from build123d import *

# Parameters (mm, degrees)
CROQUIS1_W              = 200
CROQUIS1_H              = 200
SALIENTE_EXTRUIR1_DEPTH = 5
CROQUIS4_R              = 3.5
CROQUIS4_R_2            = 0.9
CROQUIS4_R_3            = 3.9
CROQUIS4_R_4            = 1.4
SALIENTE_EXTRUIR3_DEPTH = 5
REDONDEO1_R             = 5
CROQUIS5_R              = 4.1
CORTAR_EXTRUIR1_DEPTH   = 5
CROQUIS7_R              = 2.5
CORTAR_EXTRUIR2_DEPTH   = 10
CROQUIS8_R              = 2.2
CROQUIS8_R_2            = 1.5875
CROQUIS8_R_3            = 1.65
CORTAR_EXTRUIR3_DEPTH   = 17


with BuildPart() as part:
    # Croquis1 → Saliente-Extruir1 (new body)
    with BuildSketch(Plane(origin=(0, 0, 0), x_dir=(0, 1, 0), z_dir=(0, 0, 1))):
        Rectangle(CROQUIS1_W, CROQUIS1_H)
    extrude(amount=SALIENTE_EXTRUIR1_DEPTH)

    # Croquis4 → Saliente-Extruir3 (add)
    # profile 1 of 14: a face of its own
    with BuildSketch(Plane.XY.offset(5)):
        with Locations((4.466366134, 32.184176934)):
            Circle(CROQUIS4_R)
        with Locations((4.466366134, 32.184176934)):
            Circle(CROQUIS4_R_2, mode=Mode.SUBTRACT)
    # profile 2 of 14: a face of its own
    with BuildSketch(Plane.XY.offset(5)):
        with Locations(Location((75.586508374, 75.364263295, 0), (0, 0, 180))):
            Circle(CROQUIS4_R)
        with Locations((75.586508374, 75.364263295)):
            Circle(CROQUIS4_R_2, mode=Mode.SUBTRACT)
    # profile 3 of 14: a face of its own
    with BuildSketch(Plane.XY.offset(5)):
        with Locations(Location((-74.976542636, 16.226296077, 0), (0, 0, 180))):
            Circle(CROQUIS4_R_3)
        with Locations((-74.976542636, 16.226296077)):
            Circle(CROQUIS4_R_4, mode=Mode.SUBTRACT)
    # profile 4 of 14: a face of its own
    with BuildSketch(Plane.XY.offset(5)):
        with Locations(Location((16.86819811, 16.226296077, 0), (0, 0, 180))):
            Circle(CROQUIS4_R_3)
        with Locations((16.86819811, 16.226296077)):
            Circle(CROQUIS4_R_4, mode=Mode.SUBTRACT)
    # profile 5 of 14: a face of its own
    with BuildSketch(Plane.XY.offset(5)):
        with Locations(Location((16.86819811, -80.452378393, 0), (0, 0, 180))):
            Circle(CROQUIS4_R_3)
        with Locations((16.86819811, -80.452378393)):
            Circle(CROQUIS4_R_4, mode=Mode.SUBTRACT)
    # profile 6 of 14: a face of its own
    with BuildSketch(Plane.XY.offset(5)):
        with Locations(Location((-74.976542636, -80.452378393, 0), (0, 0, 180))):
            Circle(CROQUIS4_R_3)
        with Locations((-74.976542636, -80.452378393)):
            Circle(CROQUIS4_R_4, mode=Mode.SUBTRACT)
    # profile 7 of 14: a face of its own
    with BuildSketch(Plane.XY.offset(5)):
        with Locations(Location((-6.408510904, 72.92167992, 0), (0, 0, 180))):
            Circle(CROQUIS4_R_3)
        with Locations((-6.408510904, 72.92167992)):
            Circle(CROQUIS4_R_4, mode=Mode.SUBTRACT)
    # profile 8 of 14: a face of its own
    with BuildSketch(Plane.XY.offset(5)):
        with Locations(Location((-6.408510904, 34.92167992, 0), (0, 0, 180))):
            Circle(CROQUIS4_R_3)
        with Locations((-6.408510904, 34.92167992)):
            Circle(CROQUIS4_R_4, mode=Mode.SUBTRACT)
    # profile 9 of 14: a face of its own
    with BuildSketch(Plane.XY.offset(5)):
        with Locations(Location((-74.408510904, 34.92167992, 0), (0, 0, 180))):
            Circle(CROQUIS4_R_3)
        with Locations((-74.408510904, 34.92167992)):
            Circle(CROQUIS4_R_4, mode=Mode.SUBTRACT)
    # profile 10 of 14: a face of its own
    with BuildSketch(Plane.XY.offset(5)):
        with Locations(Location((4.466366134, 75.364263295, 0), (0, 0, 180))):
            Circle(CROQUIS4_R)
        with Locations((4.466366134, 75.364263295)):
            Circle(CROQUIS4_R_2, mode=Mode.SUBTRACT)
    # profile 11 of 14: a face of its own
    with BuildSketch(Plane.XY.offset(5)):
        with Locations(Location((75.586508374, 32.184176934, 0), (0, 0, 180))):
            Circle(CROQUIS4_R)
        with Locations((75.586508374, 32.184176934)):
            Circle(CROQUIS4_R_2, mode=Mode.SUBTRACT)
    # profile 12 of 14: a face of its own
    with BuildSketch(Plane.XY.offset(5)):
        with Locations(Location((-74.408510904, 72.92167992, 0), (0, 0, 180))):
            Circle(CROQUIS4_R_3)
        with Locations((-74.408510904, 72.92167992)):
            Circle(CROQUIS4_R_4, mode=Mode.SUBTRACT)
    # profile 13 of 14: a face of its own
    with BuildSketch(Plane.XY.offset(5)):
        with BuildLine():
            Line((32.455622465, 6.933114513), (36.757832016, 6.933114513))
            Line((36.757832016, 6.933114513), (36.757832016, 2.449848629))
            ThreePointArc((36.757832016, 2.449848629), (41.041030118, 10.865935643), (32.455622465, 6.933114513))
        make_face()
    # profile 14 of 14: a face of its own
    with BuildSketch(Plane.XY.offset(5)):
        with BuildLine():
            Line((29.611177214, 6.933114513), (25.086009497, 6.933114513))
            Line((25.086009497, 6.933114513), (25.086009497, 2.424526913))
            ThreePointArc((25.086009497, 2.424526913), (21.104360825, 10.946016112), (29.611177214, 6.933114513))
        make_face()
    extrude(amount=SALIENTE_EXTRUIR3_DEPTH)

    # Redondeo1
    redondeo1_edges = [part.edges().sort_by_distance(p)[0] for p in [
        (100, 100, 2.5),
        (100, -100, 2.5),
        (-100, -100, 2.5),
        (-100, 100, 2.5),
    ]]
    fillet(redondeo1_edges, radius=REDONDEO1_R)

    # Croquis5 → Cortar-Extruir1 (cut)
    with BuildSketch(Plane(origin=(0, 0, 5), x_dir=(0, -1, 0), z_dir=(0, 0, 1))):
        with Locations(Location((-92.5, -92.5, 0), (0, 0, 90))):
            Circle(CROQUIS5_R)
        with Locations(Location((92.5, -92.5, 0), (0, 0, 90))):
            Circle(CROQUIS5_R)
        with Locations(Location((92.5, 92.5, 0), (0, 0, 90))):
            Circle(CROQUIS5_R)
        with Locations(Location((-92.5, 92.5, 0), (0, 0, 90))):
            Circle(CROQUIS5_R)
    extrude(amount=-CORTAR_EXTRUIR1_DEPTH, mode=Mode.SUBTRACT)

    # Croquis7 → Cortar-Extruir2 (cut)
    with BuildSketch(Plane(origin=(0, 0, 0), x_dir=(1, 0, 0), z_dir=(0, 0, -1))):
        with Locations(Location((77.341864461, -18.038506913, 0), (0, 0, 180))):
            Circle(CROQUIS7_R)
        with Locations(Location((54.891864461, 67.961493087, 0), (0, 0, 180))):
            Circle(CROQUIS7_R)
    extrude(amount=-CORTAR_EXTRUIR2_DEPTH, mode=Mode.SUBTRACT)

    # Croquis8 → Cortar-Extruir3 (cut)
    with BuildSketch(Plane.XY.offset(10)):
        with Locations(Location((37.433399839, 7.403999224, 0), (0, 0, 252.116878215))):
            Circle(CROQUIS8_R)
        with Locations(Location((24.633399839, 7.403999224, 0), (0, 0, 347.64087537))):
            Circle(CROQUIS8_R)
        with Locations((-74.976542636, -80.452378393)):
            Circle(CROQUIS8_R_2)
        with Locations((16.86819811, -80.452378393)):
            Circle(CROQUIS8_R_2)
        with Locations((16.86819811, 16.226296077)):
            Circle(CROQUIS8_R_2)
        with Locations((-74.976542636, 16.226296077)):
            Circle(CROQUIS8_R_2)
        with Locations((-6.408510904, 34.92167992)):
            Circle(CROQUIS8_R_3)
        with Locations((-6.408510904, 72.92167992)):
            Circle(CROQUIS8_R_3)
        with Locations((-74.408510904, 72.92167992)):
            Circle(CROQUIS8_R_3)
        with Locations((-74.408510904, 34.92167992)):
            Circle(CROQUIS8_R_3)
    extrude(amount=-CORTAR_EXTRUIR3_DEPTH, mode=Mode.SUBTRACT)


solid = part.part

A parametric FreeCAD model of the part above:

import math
import FreeCAD as App
import Part
import Sketcher
from FreeCAD import Vector


def edges_at(feature, points):
    """Names of the edges that pass closest to the given points."""
    edges = feature.Shape.Edges
    near = lambda p: min(range(len(edges)), key=lambda i: edges[i].distToShape(Part.Vertex(*p))[0])
    return sorted({f"Edge{near(p) + 1}" for p in points})


def add_polygon(sketch, points):
    """Adds a closed chain of lines whose ends are joined by coincident constraints."""
    first, n = sketch.GeometryCount, len(points)
    for a, b in zip(points, points[1:] + points[:1]):
        sketch.addGeometry(Part.LineSegment(App.Vector(*a, 0), App.Vector(*b, 0)), False)
    for i in range(n):
        sketch.addConstraint(Sketcher.Constraint("Coincident", first + i, 2, first + (i + 1) % n, 1))

doc = App.newDocument("Part")
body = doc.addObject("PartDesign::Body", "Body")

# Sketch on XY plane
sketch1 = body.newObject("Sketcher::SketchObject", "Sketch")
sketch1.AttachmentSupport = (doc.getObject("XY_Plane"), [""])
sketch1.MapMode = "FlatFace"
add_polygon(sketch1, [(-100, -100), (100, -100), (100, 100), (-100, 100)])  # lines 0-3
sketch1.addConstraint(Sketcher.Constraint("Horizontal", 0))
sketch1.addConstraint(Sketcher.Constraint("Vertical", 1))
sketch1.addConstraint(Sketcher.Constraint("Horizontal", 2))
sketch1.addConstraint(Sketcher.Constraint("Vertical", 3))
sketch1.addConstraint(Sketcher.Constraint("Symmetric", 0, 2, 2, 2, -1, 1))
sketch1.addConstraint(Sketcher.Constraint("Equal", 2, 1))
sketch1.addConstraint(Sketcher.Constraint("DistanceX", 0, 1, 0, 2, 200.0))
pad1 = body.newObject("PartDesign::Pad", "Pad")
pad1.Profile = sketch1
pad1.Length = 5

# Sketch on XY plane
sketch2 = body.newObject("Sketcher::SketchObject", "Sketch001")
sketch2.AttachmentSupport = (doc.getObject("XY_Plane"), [""])
sketch2.MapMode = "FlatFace"
sketch2.AttachmentOffset = App.Placement(Vector(0, 0, 5), App.Rotation())
sketch2.addGeometry(Part.Circle(Vector(4.5, 32.2, 0), Vector(0, 0, 1), 3.5), False)
sketch2.addGeometry(Part.Circle(Vector(4.5, 32.2, 0), Vector(0, 0, 1), 0.9), False)
sketch2.addGeometry(Part.Circle(Vector(75.6, 75.4, 0), Vector(0, 0, 1), 3.5), False)
sketch2.addGeometry(Part.Circle(Vector(75.6, 75.4, 0), Vector(0, 0, 1), 0.9), False)
sketch2.addGeometry(Part.Circle(Vector(-75, 16.2, 0), Vector(0, 0, 1), 3.9), False)
sketch2.addGeometry(Part.Circle(Vector(-75, 16.2, 0), Vector(0, 0, 1), 1.4), False)
sketch2.addGeometry(Part.Circle(Vector(16.9, 16.2, 0), Vector(0, 0, 1), 3.9), False)
sketch2.addGeometry(Part.Circle(Vector(16.9, 16.2, 0), Vector(0, 0, 1), 1.4), False)
sketch2.addGeometry(Part.Circle(Vector(16.9, -80.5, 0), Vector(0, 0, 1), 3.9), False)
sketch2.addGeometry(Part.Circle(Vector(16.9, -80.5, 0), Vector(0, 0, 1), 1.4), False)
sketch2.addGeometry(Part.Circle(Vector(-75, -80.5, 0), Vector(0, 0, 1), 3.9), False)
sketch2.addGeometry(Part.Circle(Vector(-75, -80.5, 0), Vector(0, 0, 1), 1.4), False)
sketch2.addGeometry(Part.Circle(Vector(-6.4, 72.9, 0), Vector(0, 0, 1), 3.9), False)
sketch2.addGeometry(Part.Circle(Vector(-6.4, 72.9, 0), Vector(0, 0, 1), 1.4), False)
sketch2.addGeometry(Part.Circle(Vector(-6.4, 34.9, 0), Vector(0, 0, 1), 3.9), False)
sketch2.addGeometry(Part.Circle(Vector(-6.4, 34.9, 0), Vector(0, 0, 1), 1.4), False)
sketch2.addGeometry(Part.Circle(Vector(-74.4, 34.9, 0), Vector(0, 0, 1), 3.9), False)
sketch2.addGeometry(Part.Circle(Vector(-74.4, 34.9, 0), Vector(0, 0, 1), 1.4), False)
sketch2.addGeometry(Part.Circle(Vector(4.5, 75.4, 0), Vector(0, 0, 1), 3.5), False)
sketch2.addGeometry(Part.Circle(Vector(4.5, 75.4, 0), Vector(0, 0, 1), 0.9), False)
sketch2.addGeometry(Part.Circle(Vector(75.6, 32.2, 0), Vector(0, 0, 1), 3.5), False)
sketch2.addGeometry(Part.Circle(Vector(75.6, 32.2, 0), Vector(0, 0, 1), 0.9), False)
sketch2.addGeometry(Part.Circle(Vector(-74.4, 72.9, 0), Vector(0, 0, 1), 3.9), False)
sketch2.addGeometry(Part.Circle(Vector(-74.4, 72.9, 0), Vector(0, 0, 1), 1.4), False)
sketch2.addGeometry(Part.LineSegment(Vector(32.5, 6.9, 0), Vector(36.8, 6.9, 0)), False)
sketch2.addGeometry(Part.LineSegment(Vector(36.8, 6.9, 0), Vector(36.8, 2.4, 0)), False)
sketch2.addGeometry(Part.ArcOfCircle(Part.Circle(Vector(37.4, 7.4, 0), Vector(0, 0, 1), 5), math.radians(-98), math.radians(185)), False)
sketch2.addGeometry(Part.LineSegment(Vector(25.1, 6.9, 0), Vector(29.6, 6.9, 0)), False)
sketch2.addGeometry(Part.ArcOfCircle(Part.Circle(Vector(24.6, 7.4, 0), Vector(0, 0, 1), 5), math.radians(-5), math.radians(275)), False)
sketch2.addGeometry(Part.LineSegment(Vector(25.1, 2.4, 0), Vector(25.1, 6.9, 0)), False)
sketch2.addConstraint(Sketcher.Constraint("Coincident", 24, 2, 25, 1))
sketch2.addConstraint(Sketcher.Constraint("Coincident", 25, 2, 26, 1))
sketch2.addConstraint(Sketcher.Constraint("Coincident", 26, 2, 24, 1))
sketch2.addConstraint(Sketcher.Constraint("Coincident", 27, 2, 28, 1))
sketch2.addConstraint(Sketcher.Constraint("Coincident", 28, 2, 29, 1))
sketch2.addConstraint(Sketcher.Constraint("Coincident", 29, 2, 27, 1))
sketch2.addConstraint(Sketcher.Constraint("Horizontal", 24))
sketch2.addConstraint(Sketcher.Constraint("Vertical", 25))
sketch2.addConstraint(Sketcher.Constraint("Horizontal", 27))
sketch2.addConstraint(Sketcher.Constraint("Vertical", 29))
sketch2.addConstraint(Sketcher.Constraint("Coincident", 1, 3, 0, 3))
sketch2.addConstraint(Sketcher.Constraint("Coincident", 3, 3, 2, 3))
sketch2.addConstraint(Sketcher.Constraint("Coincident", 5, 3, 4, 3))
sketch2.addConstraint(Sketcher.Constraint("Coincident", 7, 3, 6, 3))
sketch2.addConstraint(Sketcher.Constraint("Coincident", 9, 3, 8, 3))
sketch2.addConstraint(Sketcher.Constraint("Coincident", 11, 3, 10, 3))
sketch2.addConstraint(Sketcher.Constraint("Coincident", 13, 3, 12, 3))
sketch2.addConstraint(Sketcher.Constraint("Coincident", 15, 3, 14, 3))
sketch2.addConstraint(Sketcher.Constraint("Coincident", 17, 3, 16, 3))
sketch2.addConstraint(Sketcher.Constraint("Coincident", 19, 3, 18, 3))
sketch2.addConstraint(Sketcher.Constraint("Coincident", 21, 3, 20, 3))
sketch2.addConstraint(Sketcher.Constraint("Coincident", 23, 3, 22, 3))
sketch2.addConstraint(Sketcher.Constraint("Equal", 0, 2))
sketch2.addConstraint(Sketcher.Constraint("Equal", 1, 3))
sketch2.addConstraint(Sketcher.Constraint("Equal", 4, 6))
sketch2.addConstraint(Sketcher.Constraint("Equal", 5, 7))
sketch2.addConstraint(Sketcher.Constraint("Equal", 6, 8))
sketch2.addConstraint(Sketcher.Constraint("Equal", 7, 9))
sketch2.addConstraint(Sketcher.Constraint("Equal", 8, 10))
sketch2.addConstraint(Sketcher.Constraint("Equal", 9, 11))
sketch2.addConstraint(Sketcher.Constraint("Equal", 10, 12))
sketch2.addConstraint(Sketcher.Constraint("Equal", 11, 13))
sketch2.addConstraint(Sketcher.Constraint("Equal", 12, 14))
sketch2.addConstraint(Sketcher.Constraint("Equal", 13, 15))
sketch2.addConstraint(Sketcher.Constraint("Equal", 14, 16))
sketch2.addConstraint(Sketcher.Constraint("Equal", 15, 17))
sketch2.addConstraint(Sketcher.Constraint("Equal", 2, 18))
sketch2.addConstraint(Sketcher.Constraint("Equal", 3, 19))
sketch2.addConstraint(Sketcher.Constraint("Equal", 18, 20))
sketch2.addConstraint(Sketcher.Constraint("Equal", 19, 21))
sketch2.addConstraint(Sketcher.Constraint("Equal", 16, 22))
sketch2.addConstraint(Sketcher.Constraint("Equal", 17, 23))
sketch2.addConstraint(Sketcher.Constraint("Equal", 26, 28))
sketch2.addConstraint(Sketcher.Constraint("Horizontal", 5, 3, 6, 3))
sketch2.addConstraint(Sketcher.Constraint("Horizontal", 9, 3, 10, 3))
sketch2.addConstraint(Sketcher.Constraint("Horizontal", 15, 3, 16, 3))
sketch2.addConstraint(Sketcher.Constraint("Horizontal", 3, 3, 18, 3))
sketch2.addConstraint(Sketcher.Constraint("Horizontal", 1, 3, 20, 3))
sketch2.addConstraint(Sketcher.Constraint("Horizontal", 13, 3, 22, 3))
sketch2.addConstraint(Sketcher.Constraint("Horizontal", 26, 3, 28, 3))
sketch2.addConstraint(Sketcher.Constraint("Horizontal", 26, 2, 27, 2))
sketch2.addConstraint(Sketcher.Constraint("Vertical", 7, 3, 8, 3))
sketch2.addConstraint(Sketcher.Constraint("Vertical", 5, 3, 10, 3))
sketch2.addConstraint(Sketcher.Constraint("Vertical", 13, 3, 14, 3))
sketch2.addConstraint(Sketcher.Constraint("Vertical", 1, 3, 18, 3))
sketch2.addConstraint(Sketcher.Constraint("Vertical", 3, 3, 20, 3))
sketch2.addConstraint(Sketcher.Constraint("Vertical", 17, 3, 22, 3))
sketch2.addConstraint(Sketcher.Constraint("Diameter", 0, 7.0))
sketch2.addConstraint(Sketcher.Constraint("Radius", 26, 5.0))
sketch2.addConstraint(Sketcher.Constraint("Diameter", 1, 1.8))
sketch2.addConstraint(Sketcher.Constraint("Diameter", 4, 7.8))
sketch2.addConstraint(Sketcher.Constraint("Diameter", 5, 2.8))
sketch2.addConstraint(Sketcher.Constraint("DistanceY", 14, 3, 12, 3, 38.0))
sketch2.addConstraint(Sketcher.Constraint("DistanceX", 16, 3, 14, 3, 68.0))
sketch2.addConstraint(Sketcher.Constraint("DistanceX", 28, 3, 26, 3, 12.8))
sketch2.addConstraint(Sketcher.Constraint("DistanceY", -1, 1, 26, 3, 7.403999))
sketch2.addConstraint(Sketcher.Constraint("DistanceX", 24, 1, 24, 2, 4.30221))
sketch2.addConstraint(Sketcher.Constraint("DistanceX", -1, 1, 6, 3, 16.868198))
sketch2.addConstraint(Sketcher.Constraint("DistanceX", -1, 1, 26, 3, 37.4334))
sketch2.addConstraint(Sketcher.Constraint("DistanceX", 27, 1, 27, 2, 4.525168))
sketch2.addConstraint(Sketcher.Constraint("DistanceY", 25, 2, 25, 1, 4.483266))
sketch2.addConstraint(Sketcher.Constraint("DistanceX", -1, 1, 2, 3, 75.586508))
sketch2.addConstraint(Sketcher.Constraint("DistanceY", 8, 3, -1, 1, 80.452378))
sketch2.addConstraint(Sketcher.Constraint("DistanceX", 12, 3, -1, 1, 6.408511))
sketch2.addConstraint(Sketcher.Constraint("DistanceY", -1, 1, 12, 3, 72.92168))
sketch2.addConstraint(Sketcher.Constraint("DistanceX", 4, 3, 0, 3, 79.442909))
sketch2.addConstraint(Sketcher.Constraint("DistanceY", 4, 3, 0, 3, 15.957881))
sketch2.addConstraint(Sketcher.Constraint("DistanceX", 4, 3, 2, 3, 150.563051))
sketch2.addConstraint(Sketcher.Constraint("DistanceY", 24, 2, 6, 3, 9.293182))
sketch2.addConstraint(Sketcher.Constraint("DistanceY", -1, 1, 2, 3, 75.364263))
pad2 = body.newObject("PartDesign::Pad", "Pad001")
pad2.Profile = sketch2
pad2.Length = 5
doc.recompute()

fillet = body.newObject("PartDesign::Fillet", "Fillet")
fillet.Base = (pad2, edges_at(pad2, [
    (100, 100, 2.5),
    (100, -100, 2.5),
    (-100, -100, 2.5),
    (-100, 100, 2.5),
]))
fillet.Radius = 5

# Sketch on XY plane
sketch3 = body.newObject("Sketcher::SketchObject", "Sketch002")
sketch3.AttachmentSupport = (doc.getObject("XY_Plane"), [""])
sketch3.MapMode = "FlatFace"
sketch3.AttachmentOffset = App.Placement(Vector(0, 0, 5), App.Rotation())
sketch3.addGeometry(Part.Circle(Vector(-92.5, 92.5, 0), Vector(0, 0, 1), 4.1), False)
sketch3.addGeometry(Part.Circle(Vector(-92.5, -92.5, 0), Vector(0, 0, 1), 4.1), False)
sketch3.addGeometry(Part.Circle(Vector(92.5, -92.5, 0), Vector(0, 0, 1), 4.1), False)
sketch3.addGeometry(Part.Circle(Vector(92.5, 92.5, 0), Vector(0, 0, 1), 4.1), False)
sketch3.addConstraint(Sketcher.Constraint("Equal", 0, 1))
sketch3.addConstraint(Sketcher.Constraint("Equal", 1, 2))
sketch3.addConstraint(Sketcher.Constraint("Equal", 2, 3))
sketch3.addConstraint(Sketcher.Constraint("Symmetric", 0, 3, 2, 3, -1, 1))
sketch3.addConstraint(Sketcher.Constraint("Symmetric", 1, 3, 3, 3, -1, 1))
sketch3.addConstraint(Sketcher.Constraint("Symmetric", 1, 3, 2, 3, -2))
sketch3.addConstraint(Sketcher.Constraint("Diameter", 0, 8.2))
sketch3.addConstraint(Sketcher.Constraint("DistanceY", 1, 3, 0, 3, 185.0))
sketch3.addConstraint(Sketcher.Constraint("DistanceX", 1, 3, 2, 3, 185.0))
pocket1 = body.newObject("PartDesign::Pocket", "Pocket")
pocket1.Profile = sketch3
pocket1.Length = 5

# Sketch on XY plane
sketch4 = body.newObject("Sketcher::SketchObject", "Sketch003")
sketch4.AttachmentSupport = (doc.getObject("XY_Plane"), [""])
sketch4.MapMode = "FlatFace"
sketch4.addGeometry(Part.Circle(Vector(77.3, 18, 0), Vector(0, 0, 1), 2.5), False)
sketch4.addGeometry(Part.Circle(Vector(54.9, -68, 0), Vector(0, 0, 1), 2.5), False)
sketch4.addConstraint(Sketcher.Constraint("Equal", 0, 1))
sketch4.addConstraint(Sketcher.Constraint("Diameter", 0, 5.0))
sketch4.addConstraint(Sketcher.Constraint("DistanceY", 1, 3, 0, 3, 86.0))
sketch4.addConstraint(Sketcher.Constraint("DistanceX", 1, 3, 0, 3, 22.45))
sketch4.addConstraint(Sketcher.Constraint("DistanceX", -1, 1, 0, 3, 77.341864))
sketch4.addConstraint(Sketcher.Constraint("DistanceY", -1, 1, 0, 3, 18.038507))
pocket2 = body.newObject("PartDesign::Pocket", "Pocket001")
pocket2.Profile = sketch4
pocket2.Length = 10
pocket2.Reversed = True

# Sketch on XY plane
sketch5 = body.newObject("Sketcher::SketchObject", "Sketch004")
sketch5.AttachmentSupport = (doc.getObject("XY_Plane"), [""])
sketch5.MapMode = "FlatFace"
sketch5.AttachmentOffset = App.Placement(Vector(0, 0, 10), App.Rotation())
sketch5.addGeometry(Part.Circle(Vector(37.4, 7.4, 0), Vector(0, 0, 1), 2.2), False)
sketch5.addGeometry(Part.Circle(Vector(24.6, 7.4, 0), Vector(0, 0, 1), 2.2), False)
sketch5.addGeometry(Part.Circle(Vector(-75, -80.5, 0), Vector(0, 0, 1), 1.6), False)
sketch5.addGeometry(Part.Circle(Vector(16.9, -80.5, 0), Vector(0, 0, 1), 1.6), False)
sketch5.addGeometry(Part.Circle(Vector(16.9, 16.2, 0), Vector(0, 0, 1), 1.6), False)
sketch5.addGeometry(Part.Circle(Vector(-75, 16.2, 0), Vector(0, 0, 1), 1.6), False)
sketch5.addGeometry(Part.Circle(Vector(-6.4, 34.9, 0), Vector(0, 0, 1), 1.6), False)
sketch5.addGeometry(Part.Circle(Vector(-6.4, 72.9, 0), Vector(0, 0, 1), 1.6), False)
sketch5.addGeometry(Part.Circle(Vector(-74.4, 72.9, 0), Vector(0, 0, 1), 1.6), False)
sketch5.addGeometry(Part.Circle(Vector(-74.4, 34.9, 0), Vector(0, 0, 1), 1.6), False)
sketch5.addConstraint(Sketcher.Constraint("Equal", 0, 1))
sketch5.addConstraint(Sketcher.Constraint("Equal", 2, 3))
sketch5.addConstraint(Sketcher.Constraint("Equal", 3, 4))
sketch5.addConstraint(Sketcher.Constraint("Equal", 4, 5))
sketch5.addConstraint(Sketcher.Constraint("Equal", 6, 7))
sketch5.addConstraint(Sketcher.Constraint("Equal", 7, 8))
sketch5.addConstraint(Sketcher.Constraint("Equal", 8, 9))
sketch5.addConstraint(Sketcher.Constraint("Horizontal", 0, 3, 1, 3))
sketch5.addConstraint(Sketcher.Constraint("Horizontal", 2, 3, 3, 3))
sketch5.addConstraint(Sketcher.Constraint("Horizontal", 4, 3, 5, 3))
sketch5.addConstraint(Sketcher.Constraint("Horizontal", 7, 3, 8, 3))
sketch5.addConstraint(Sketcher.Constraint("Horizontal", 6, 3, 9, 3))
sketch5.addConstraint(Sketcher.Constraint("Vertical", 3, 3, 4, 3))
sketch5.addConstraint(Sketcher.Constraint("Vertical", 2, 3, 5, 3))
sketch5.addConstraint(Sketcher.Constraint("Vertical", 6, 3, 7, 3))
sketch5.addConstraint(Sketcher.Constraint("Vertical", 8, 3, 9, 3))
sketch5.addConstraint(Sketcher.Constraint("Diameter", 0, 4.4))
sketch5.addConstraint(Sketcher.Constraint("Diameter", 6, 3.3))
sketch5.addConstraint(Sketcher.Constraint("Diameter", 2, 3.175))
sketch5.addConstraint(Sketcher.Constraint("DistanceY", 6, 3, 7, 3, 38.0))
sketch5.addConstraint(Sketcher.Constraint("DistanceX", 8, 3, 7, 3, 68.0))
sketch5.addConstraint(Sketcher.Constraint("DistanceX", 1, 3, 0, 3, 12.8))
sketch5.addConstraint(Sketcher.Constraint("DistanceY", -1, 1, 0, 3, 7.403999))
sketch5.addConstraint(Sketcher.Constraint("DistanceX", -1, 1, 0, 3, 37.4334))
sketch5.addConstraint(Sketcher.Constraint("DistanceX", -1, 1, 3, 3, 16.868198))
sketch5.addConstraint(Sketcher.Constraint("DistanceY", 2, 3, -1, 1, 80.452378))
sketch5.addConstraint(Sketcher.Constraint("DistanceX", 6, 3, -1, 1, 6.408511))
sketch5.addConstraint(Sketcher.Constraint("DistanceY", -1, 1, 6, 3, 34.92168))
sketch5.addConstraint(Sketcher.Constraint("DistanceX", 2, 3, 3, 3, 91.844741))
sketch5.addConstraint(Sketcher.Constraint("DistanceY", -1, 1, 4, 3, 16.226296))
pocket3 = body.newObject("PartDesign::Pocket", "Pocket002")
pocket3.Profile = sketch5
pocket3.Length = 17

doc.recompute()
